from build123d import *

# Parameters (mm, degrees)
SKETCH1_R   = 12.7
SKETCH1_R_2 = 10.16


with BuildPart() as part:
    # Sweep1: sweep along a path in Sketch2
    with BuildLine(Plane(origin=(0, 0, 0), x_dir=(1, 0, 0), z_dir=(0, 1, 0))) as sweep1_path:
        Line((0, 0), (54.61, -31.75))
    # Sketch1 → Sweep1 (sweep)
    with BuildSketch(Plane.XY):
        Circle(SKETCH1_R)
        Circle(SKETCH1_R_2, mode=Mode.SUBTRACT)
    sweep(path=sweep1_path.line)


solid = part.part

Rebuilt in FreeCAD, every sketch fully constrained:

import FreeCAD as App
import Part
import Sketcher
Q = App.Units.Quantity

doc = App.newDocument("Part")
body = doc.addObject("PartDesign::Body", "Body")

sketch1 = doc.addObject("Sketcher::SketchObject", "Sketch")
body.addObject(sketch1)
sketch1.AttachmentSupport = (doc.XY_Plane, [""])
sketch1.MapMode = "FlatFace"
sketch1.addGeometry([
    Part.Circle(App.Vector(0, 0, 0), App.Vector(0, 0, 1), 13),
    Part.Circle(App.Vector(0, 0, 0), App.Vector(0, 0, 1), 10),
], False)
sketch1.addConstraint([
    Sketcher.Constraint("Coincident", 0, 3, -1, 1),
    Sketcher.Constraint("Coincident", 1, 3, -1, 1),
    Sketcher.Constraint("Diameter", 0, Q("1 in")),
    Sketcher.Constraint("Diameter", 1, Q("0.8 in")),
])

sketch2 = doc.addObject("Sketcher::SketchObject", "Sketch001")
body.addObject(sketch2)
sketch2.Placement = App.Placement(App.Vector(0, 0, 0), App.Rotation(App.Vector(0.864507187, 0, 0.502620457), App.Vector(0, 1, 0), App.Vector(-0.502620457, 0, 0.864507187), "ZXY"))
sketch2.addGeometry(Part.LineSegment(App.Vector(0, 0, 0), App.Vector(63, 0, 0)), False)
sketch2.addConstraint([
    Sketcher.Constraint("Horizontal", 0),
    Sketcher.Constraint("Coincident", 0, 1, -1, 1),
    Sketcher.Constraint("DistanceX", 0, 1, 0, 2, 63.168937),
])
doc.recompute()

additivepipe = doc.addObject("PartDesign::AdditivePipe", "AdditivePipe")
body.addObject(additivepipe)
additivepipe.Profile = sketch1
additivepipe.Spine = (sketch2, ["Edge1"])

doc.recompute()
